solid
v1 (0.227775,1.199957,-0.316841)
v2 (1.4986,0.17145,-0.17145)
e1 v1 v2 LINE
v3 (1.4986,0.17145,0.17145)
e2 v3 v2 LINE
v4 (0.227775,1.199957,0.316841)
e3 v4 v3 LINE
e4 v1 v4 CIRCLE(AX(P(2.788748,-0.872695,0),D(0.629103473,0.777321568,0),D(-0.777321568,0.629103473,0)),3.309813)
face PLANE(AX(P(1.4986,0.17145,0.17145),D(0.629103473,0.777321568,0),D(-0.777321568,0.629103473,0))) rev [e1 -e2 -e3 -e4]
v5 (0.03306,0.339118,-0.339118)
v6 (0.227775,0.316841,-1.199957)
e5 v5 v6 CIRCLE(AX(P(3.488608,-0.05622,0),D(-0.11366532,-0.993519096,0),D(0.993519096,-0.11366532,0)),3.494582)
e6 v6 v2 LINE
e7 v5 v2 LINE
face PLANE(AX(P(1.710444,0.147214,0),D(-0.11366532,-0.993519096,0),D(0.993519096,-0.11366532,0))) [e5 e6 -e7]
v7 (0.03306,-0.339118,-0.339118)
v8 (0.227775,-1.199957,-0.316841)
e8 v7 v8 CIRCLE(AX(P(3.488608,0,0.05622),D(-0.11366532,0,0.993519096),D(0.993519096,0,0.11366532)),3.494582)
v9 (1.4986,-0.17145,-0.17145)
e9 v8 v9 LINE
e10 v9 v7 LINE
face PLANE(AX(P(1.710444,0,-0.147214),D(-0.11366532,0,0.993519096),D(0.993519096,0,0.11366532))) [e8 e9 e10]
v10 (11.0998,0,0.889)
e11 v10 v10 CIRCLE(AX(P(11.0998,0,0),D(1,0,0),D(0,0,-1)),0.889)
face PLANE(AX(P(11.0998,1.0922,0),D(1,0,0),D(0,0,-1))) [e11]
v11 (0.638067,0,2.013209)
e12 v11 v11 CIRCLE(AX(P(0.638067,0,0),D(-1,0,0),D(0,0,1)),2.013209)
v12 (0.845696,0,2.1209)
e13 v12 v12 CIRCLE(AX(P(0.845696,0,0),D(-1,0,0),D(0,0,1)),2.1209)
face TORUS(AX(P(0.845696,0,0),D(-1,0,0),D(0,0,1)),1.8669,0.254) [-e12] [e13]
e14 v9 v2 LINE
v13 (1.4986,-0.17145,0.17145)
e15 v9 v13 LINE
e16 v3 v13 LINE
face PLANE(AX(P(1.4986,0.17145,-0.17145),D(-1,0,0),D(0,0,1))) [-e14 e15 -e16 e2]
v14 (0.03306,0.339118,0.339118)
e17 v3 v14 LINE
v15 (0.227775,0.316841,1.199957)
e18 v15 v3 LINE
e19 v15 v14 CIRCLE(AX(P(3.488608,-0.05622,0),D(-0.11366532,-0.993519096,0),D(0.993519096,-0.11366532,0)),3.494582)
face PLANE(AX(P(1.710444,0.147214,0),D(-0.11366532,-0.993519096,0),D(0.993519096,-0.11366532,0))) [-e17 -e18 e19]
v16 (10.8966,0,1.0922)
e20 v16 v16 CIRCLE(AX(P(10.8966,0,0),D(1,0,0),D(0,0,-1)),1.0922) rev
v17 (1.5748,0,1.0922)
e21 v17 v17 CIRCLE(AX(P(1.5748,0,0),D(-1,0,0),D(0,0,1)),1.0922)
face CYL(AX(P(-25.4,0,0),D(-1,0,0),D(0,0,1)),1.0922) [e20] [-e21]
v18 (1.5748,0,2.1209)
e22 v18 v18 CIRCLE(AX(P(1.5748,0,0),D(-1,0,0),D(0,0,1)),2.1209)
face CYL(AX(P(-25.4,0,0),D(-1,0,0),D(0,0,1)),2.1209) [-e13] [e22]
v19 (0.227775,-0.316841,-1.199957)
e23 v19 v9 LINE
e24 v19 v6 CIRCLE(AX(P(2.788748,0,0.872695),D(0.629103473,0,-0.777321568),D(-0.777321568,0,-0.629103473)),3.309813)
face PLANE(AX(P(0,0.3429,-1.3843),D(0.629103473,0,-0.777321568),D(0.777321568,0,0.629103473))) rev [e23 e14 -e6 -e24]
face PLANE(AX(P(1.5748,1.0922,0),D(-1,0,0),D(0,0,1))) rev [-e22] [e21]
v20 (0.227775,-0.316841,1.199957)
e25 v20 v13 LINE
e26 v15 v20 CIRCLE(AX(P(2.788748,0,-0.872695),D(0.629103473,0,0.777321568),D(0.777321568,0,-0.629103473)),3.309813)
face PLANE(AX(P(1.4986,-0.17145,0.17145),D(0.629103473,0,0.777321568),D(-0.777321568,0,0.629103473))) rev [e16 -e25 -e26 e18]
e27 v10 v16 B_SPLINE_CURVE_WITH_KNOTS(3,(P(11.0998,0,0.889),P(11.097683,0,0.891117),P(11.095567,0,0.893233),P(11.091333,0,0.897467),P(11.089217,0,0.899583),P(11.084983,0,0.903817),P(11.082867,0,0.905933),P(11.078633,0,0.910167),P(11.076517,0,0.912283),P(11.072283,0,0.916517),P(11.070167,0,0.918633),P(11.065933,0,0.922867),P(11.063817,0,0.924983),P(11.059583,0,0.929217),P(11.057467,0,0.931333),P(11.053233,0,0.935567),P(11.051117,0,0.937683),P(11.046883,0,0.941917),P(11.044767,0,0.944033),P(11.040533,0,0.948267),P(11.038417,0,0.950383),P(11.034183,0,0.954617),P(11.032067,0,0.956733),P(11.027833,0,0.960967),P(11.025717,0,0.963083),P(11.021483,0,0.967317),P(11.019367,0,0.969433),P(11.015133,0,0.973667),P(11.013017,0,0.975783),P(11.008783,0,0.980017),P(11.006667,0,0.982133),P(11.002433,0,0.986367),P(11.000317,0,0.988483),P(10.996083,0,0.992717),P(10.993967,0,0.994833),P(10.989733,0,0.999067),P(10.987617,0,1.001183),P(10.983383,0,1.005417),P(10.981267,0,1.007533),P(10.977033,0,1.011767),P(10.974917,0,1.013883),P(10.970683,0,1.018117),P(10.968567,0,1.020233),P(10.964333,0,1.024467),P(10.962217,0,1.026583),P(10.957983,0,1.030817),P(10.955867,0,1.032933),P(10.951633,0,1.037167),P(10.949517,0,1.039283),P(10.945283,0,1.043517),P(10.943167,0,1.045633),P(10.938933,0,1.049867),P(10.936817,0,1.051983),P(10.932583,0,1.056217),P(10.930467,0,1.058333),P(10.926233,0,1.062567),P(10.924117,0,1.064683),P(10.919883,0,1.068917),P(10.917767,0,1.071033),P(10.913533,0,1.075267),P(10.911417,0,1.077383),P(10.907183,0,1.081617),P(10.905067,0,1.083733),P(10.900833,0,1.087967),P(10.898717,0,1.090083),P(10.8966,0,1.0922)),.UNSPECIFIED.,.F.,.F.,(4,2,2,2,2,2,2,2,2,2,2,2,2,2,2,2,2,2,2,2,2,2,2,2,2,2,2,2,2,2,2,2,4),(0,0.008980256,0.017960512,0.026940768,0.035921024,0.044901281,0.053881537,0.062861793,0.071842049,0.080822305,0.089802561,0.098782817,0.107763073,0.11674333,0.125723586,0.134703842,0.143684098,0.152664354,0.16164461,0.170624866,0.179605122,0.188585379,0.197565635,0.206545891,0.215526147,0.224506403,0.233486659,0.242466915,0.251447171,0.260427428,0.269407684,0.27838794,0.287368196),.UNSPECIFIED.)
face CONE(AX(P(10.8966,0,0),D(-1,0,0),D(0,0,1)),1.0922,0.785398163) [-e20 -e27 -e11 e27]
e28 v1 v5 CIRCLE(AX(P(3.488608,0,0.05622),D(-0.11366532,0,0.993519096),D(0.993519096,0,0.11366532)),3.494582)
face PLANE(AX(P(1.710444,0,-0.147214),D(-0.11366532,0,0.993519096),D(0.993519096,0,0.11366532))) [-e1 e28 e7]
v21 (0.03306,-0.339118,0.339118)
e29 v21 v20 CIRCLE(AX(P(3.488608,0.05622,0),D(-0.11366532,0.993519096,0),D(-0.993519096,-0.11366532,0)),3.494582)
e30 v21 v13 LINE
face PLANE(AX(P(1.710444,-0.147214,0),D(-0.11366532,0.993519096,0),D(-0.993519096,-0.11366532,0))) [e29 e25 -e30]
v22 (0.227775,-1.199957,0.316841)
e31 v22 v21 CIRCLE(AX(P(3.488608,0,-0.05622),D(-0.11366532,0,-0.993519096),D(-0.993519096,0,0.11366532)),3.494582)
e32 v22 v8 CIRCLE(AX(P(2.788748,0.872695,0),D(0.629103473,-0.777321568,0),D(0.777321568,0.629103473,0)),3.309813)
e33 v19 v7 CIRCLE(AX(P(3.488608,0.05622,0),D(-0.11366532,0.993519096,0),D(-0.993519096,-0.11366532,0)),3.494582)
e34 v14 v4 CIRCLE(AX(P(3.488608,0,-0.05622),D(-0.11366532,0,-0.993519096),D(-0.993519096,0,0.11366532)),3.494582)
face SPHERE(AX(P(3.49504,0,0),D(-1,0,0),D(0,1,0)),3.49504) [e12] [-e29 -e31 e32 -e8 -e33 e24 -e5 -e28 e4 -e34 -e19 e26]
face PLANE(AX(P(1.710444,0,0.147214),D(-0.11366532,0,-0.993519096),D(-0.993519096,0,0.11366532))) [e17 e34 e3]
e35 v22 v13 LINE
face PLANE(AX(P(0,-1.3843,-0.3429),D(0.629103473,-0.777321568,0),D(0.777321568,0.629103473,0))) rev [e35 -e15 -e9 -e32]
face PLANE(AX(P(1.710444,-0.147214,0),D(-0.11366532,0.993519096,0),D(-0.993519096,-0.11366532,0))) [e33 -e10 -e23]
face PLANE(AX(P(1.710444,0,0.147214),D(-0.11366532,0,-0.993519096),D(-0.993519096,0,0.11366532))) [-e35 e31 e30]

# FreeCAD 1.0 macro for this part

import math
import FreeCAD as App
import Part
import Sketcher

V = App.Vector
Q = App.Units.Quantity


def edges_at(feature, points):
    """Names of the edges that pass closest to the given points."""
    edges = feature.Shape.Edges
    near = lambda p: min(range(len(edges)), key=lambda i: edges[i].distToShape(Part.Vertex(*p))[0])
    return sorted({f"Edge{near(p) + 1}" for p in points})


def add_polygon(sketch, points):
    """Adds a closed chain of lines whose ends are joined by coincident constraints."""
    first, n = sketch.GeometryCount, len(points)
    for a, b in zip(points, points[1:] + points[:1]):
        sketch.addGeometry(Part.LineSegment(App.Vector(*a, 0), App.Vector(*b, 0)), False)
    for i in range(n):
        sketch.addConstraint(Sketcher.Constraint("Coincident", first + i, 2, first + (i + 1) % n, 1))

doc = App.newDocument("Part")
body = doc.addObject("PartDesign::Body", "Body")

# Sketch on XY plane
sketch1 = body.newObject("Sketcher::SketchObject", "Sketch")
sketch1.AttachmentSupport = (doc.getObject("XY_Plane"), [""])
sketch1.MapMode = "FlatFace"
sketch1.addGeometry([
    Part.LineSegment(V(1.57, 1.09, 0), V(1.57, 2.12, 0)),  # 0
    Part.LineSegment(V(1.57, 2.12, 0), V(0.85, 2.12, 0)),  # 1
    Part.ArcOfCircle(Part.Circle(V(0.85, 1.87, 0), V(0, 0, 1), 0.25), math.radians(90), math.radians(145)),  # 2
    Part.ArcOfCircle(Part.Circle(V(3.5, 0, 0), V(0, 0, 1), 3.5), math.radians(145), math.radians(180)),  # 3
    Part.LineSegment(V(0, 0, 0), V(11.1, 0, 0)),  # 4
    Part.LineSegment(V(11.1, 0, 0), V(11.1, 1.09, 0)),  # 5
    Part.LineSegment(V(11.1, 1.09, 0), V(1.57, 1.09, 0)),  # 6
], False)
sketch1.addConstraint([
    Sketcher.Constraint("Coincident", 0, 2, 1, 1),
    Sketcher.Constraint("Tangent", 1, 2, 2, 1),
    Sketcher.Constraint("Tangent", 2, 2, 3, 1),
    Sketcher.Constraint("Coincident", 3, 2, 4, 1),
    Sketcher.Constraint("Coincident", 4, 2, 5, 1),
    Sketcher.Constraint("Coincident", 5, 2, 6, 1),
    Sketcher.Constraint("Coincident", 6, 2, 0, 1),
    Sketcher.Constraint("Vertical", 0),
    Sketcher.Constraint("Horizontal", 1),
    Sketcher.Constraint("Horizontal", 4),
    Sketcher.Constraint("Vertical", 5),
    Sketcher.Constraint("Horizontal", 6),
    Sketcher.Constraint("Coincident", 3, 2, -1, 1),
    Sketcher.Constraint("PointOnObject", 3, 3, -1),
    Sketcher.Constraint("Radius", 2, Q("0.01 in")),
    Sketcher.Constraint("Radius", 3, Q("0.1376 in")),
    Sketcher.Constraint("DistanceX", 4, 1, 4, 2, Q("0.437 in")),
    Sketcher.Constraint("DistanceX", 6, 2, 6, 1, Q("0.375 in")),
    Sketcher.Constraint("DistanceY", 5, 1, 5, 2, Q("0.043 in")),
    Sketcher.Constraint("DistanceY", 0, 1, 0, 2, Q("0.0405 in")),
])
revolution = body.newObject("PartDesign::Revolution", "Revolution")
revolution.Profile = sketch1
revolution.ReferenceAxis = (sketch1, ["H_Axis"])
revolution.Angle = 360

# Sketch on YZ plane
sketch2 = body.newObject("Sketcher::SketchObject", "Sketch001")
sketch2.AttachmentSupport = (doc.getObject("YZ_Plane"), [""])
sketch2.MapMode = "FlatFace"
add_polygon(sketch2, [(-1.4, 0.3), (-1.4, -0.3), (1.4, -0.3), (1.4, 0.3)])  # lines 0-3
sketch2.addConstraint([
    Sketcher.Constraint("Vertical", 0),
    Sketcher.Constraint("Horizontal", 1),
    Sketcher.Constraint("Vertical", 2),
    Sketcher.Constraint("Horizontal", 3),
    Sketcher.Constraint("Symmetric", 0, 2, 2, 2, -1, 1),
    Sketcher.Constraint("DistanceX", 1, 1, 1, 2, Q("0.109 in")),
    Sketcher.Constraint("DistanceY", 0, 2, 0, 1, Q("0.027 in")),
])

# Sketch on YZ plane
sketch3 = body.newObject("Sketcher::SketchObject", "Sketch002")
sketch3.AttachmentSupport = (doc.getObject("YZ_Plane"), [""])
sketch3.MapMode = "FlatFace"
sketch3.AttachmentOffset = App.Placement(V(0, 0, 0.059 * 25.4), App.Rotation())
add_polygon(sketch3, [(-0.17, 0.17), (-0.17, -0.17), (0.17, -0.17), (0.17, 0.17)])  # lines 0-3
sketch3.addConstraint([
    Sketcher.Constraint("Vertical", 0),
    Sketcher.Constraint("Horizontal", 1),
    Sketcher.Constraint("Vertical", 2),
    Sketcher.Constraint("Horizontal", 3),
    Sketcher.Constraint("Symmetric", 0, 2, 2, 2, -1, 1),
    Sketcher.Constraint("Equal", 3, 0),
    Sketcher.Constraint("DistanceX", 1, 1, 1, 2, Q("0.0135 in")),
])

subtractiveloft = body.newObject("PartDesign::SubtractiveLoft", "SubtractiveLoft")
subtractiveloft.Profile = sketch2
subtractiveloft.Sections = [sketch3]
doc.recompute()

polarpattern = body.newObject("PartDesign::PolarPattern", "PolarPattern")
polarpattern.Originals = [subtractiveloft]
polarpattern.Axis = (doc.getObject("X_Axis"), [""])
polarpattern.Angle = 90
polarpattern.Occurrences = 2
body.Tip = polarpattern
doc.recompute()

chamfer = body.newObject("PartDesign::Chamfer", "Chamfer")
chamfer.Base = (polarpattern, edges_at(polarpattern, [(11.1, 0, -1.092)]))
chamfer.Size = Q("0.008 in")

doc.recompute()
